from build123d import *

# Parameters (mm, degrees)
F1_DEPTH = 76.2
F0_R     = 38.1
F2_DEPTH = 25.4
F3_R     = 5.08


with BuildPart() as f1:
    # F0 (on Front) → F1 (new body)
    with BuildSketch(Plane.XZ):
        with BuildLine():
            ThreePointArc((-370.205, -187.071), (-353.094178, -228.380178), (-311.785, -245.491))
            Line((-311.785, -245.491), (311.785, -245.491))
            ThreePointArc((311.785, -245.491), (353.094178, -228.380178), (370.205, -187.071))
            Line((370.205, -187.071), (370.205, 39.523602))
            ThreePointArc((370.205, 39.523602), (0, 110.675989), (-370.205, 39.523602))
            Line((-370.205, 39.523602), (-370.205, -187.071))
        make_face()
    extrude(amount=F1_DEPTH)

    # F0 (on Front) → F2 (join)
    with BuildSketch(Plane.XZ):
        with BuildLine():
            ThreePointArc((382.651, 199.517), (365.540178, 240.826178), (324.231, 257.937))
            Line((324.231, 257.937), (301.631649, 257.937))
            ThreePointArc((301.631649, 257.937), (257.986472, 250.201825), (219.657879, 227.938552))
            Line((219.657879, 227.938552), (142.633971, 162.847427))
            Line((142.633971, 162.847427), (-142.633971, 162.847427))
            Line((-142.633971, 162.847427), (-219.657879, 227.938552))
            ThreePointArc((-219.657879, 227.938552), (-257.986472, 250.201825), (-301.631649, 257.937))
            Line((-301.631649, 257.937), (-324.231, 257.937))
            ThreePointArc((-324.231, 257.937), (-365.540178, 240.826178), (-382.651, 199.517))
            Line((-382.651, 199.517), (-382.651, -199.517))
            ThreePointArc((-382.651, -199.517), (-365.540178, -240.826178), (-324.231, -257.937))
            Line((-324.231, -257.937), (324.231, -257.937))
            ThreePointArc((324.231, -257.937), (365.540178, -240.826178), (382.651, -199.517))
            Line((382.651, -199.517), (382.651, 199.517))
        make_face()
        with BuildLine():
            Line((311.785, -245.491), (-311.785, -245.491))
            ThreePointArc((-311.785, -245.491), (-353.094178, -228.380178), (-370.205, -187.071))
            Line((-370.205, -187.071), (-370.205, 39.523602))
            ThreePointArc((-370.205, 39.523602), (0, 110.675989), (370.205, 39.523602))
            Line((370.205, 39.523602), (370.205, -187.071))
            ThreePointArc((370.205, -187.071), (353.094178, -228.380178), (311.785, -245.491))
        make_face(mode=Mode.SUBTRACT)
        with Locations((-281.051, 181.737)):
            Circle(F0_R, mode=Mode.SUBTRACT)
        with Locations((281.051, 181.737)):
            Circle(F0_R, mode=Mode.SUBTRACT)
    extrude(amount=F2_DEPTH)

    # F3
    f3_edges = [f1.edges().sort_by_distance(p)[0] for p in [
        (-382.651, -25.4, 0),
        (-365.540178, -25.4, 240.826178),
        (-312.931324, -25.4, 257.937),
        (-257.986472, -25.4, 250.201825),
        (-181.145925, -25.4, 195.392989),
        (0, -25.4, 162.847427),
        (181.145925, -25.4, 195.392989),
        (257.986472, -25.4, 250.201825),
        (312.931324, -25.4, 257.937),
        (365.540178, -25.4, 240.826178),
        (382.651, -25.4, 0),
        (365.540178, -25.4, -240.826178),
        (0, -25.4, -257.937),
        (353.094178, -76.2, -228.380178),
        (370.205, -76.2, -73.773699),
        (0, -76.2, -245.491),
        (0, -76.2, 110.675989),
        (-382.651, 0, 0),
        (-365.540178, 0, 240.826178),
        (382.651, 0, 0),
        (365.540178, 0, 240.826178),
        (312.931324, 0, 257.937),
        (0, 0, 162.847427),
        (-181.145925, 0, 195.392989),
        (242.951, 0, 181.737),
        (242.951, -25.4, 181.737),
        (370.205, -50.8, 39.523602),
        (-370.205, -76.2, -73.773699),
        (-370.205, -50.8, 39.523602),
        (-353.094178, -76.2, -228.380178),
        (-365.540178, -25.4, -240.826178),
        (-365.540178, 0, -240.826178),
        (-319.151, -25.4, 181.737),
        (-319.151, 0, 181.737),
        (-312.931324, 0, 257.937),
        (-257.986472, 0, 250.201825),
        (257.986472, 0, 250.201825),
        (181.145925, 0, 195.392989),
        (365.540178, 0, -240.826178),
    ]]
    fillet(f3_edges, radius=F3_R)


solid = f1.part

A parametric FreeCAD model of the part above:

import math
import FreeCAD as App
import Part
import Sketcher
from FreeCAD import Vector
Q = App.Units.Quantity


def edges_at(feature, points):
    """Names of the edges that pass closest to the given points."""
    edges = feature.Shape.Edges
    near = lambda p: min(range(len(edges)), key=lambda i: edges[i].distToShape(Part.Vertex(*p))[0])
    return sorted({f"Edge{near(p) + 1}" for p in points})

doc = App.newDocument("Part")
params = doc.addObject("Spreadsheet::Sheet", "Params")
for row, (alias, value) in enumerate([
    ("sketch1_radius", "2.3 in"),
    ("sketch1_width", "24.55 in"),
    ("pad1_length", "3 in"),
    ("sketch2_diameter", "3 in"),
    ("sketch2_radius", "5.0000002 in"),
    ("sketch2_radius2", "2.3 in"),
    ("sketch2_width", "25.53 in"),
    ("sketch2_width2", "24.55 in"),
    ("pad2_length", "1 in"),
    ("fillet_radius", "0.2 in"),
], start=1):
    params.set(f"A{row}", alias)
    params.set(f"B{row}", "=" + value)
    params.setAlias(f"B{row}", alias)

body = doc.addObject("PartDesign::Body", "Body")

# Sketch on XZ plane
sketch1 = body.newObject("Sketcher::SketchObject", "Sketch")
sketch1.AttachmentSupport = (doc.getObject("XZ_Plane"), [""])
sketch1.MapMode = "FlatFace"
sketch1.addGeometry(Part.ArcOfCircle(Part.Circle(Vector(-312, -187, 0), Vector(0, 0, 1), 58), math.radians(-180), math.radians(-90)), False)
sketch1.addGeometry(Part.LineSegment(Vector(-312, -245, 0), Vector(312, -245, 0)), False)
sketch1.addGeometry(Part.ArcOfCircle(Part.Circle(Vector(312, -187, 0), Vector(0, 0, 1), 58), math.radians(-90), math.radians(0)), False)
sketch1.addGeometry(Part.LineSegment(Vector(370, -187, 0), Vector(370, 40, 0)), False)
sketch1.addGeometry(Part.ArcOfCircle(Part.Circle(Vector(0, -888, 0), Vector(0, 0, 1), 999), math.radians(68), math.radians(112)), False)
sketch1.addGeometry(Part.LineSegment(Vector(-370, 40, 0), Vector(-370, -187, 0)), False)
sketch1.addConstraint(Sketcher.Constraint("Tangent", 0, 2, 1, 1))
sketch1.addConstraint(Sketcher.Constraint("Tangent", 1, 2, 2, 1))
sketch1.addConstraint(Sketcher.Constraint("Tangent", 2, 2, 3, 1))
sketch1.addConstraint(Sketcher.Constraint("Coincident", 3, 2, 4, 1))
sketch1.addConstraint(Sketcher.Constraint("Coincident", 4, 2, 5, 1))
sketch1.addConstraint(Sketcher.Constraint("Tangent", 5, 2, 0, 1))
sketch1.addConstraint(Sketcher.Constraint("Horizontal", 1))
sketch1.addConstraint(Sketcher.Constraint("Vertical", 3))
sketch1.addConstraint(Sketcher.Constraint("Vertical", 5))
sketch1.addConstraint(Sketcher.Constraint("Equal", 0, 2))
sketch1.addConstraint(Sketcher.Constraint("PointOnObject", 4, 3, -2))
sketch1.addConstraint(Sketcher.Constraint("Equal", 3, 5))
sketch1.addConstraint(Sketcher.Constraint("Radius", 0, Q("2.3 in")))
sketch1.addConstraint(Sketcher.Constraint("DistanceX", 1, 1, 1, 2, Q("24.55 in")))
sketch1.addConstraint(Sketcher.Constraint("DistanceY", 0, 3, -1, 1, Q("7.365 in")))
sketch1.addConstraint(Sketcher.Constraint("Radius", 4, Q("998.662239 mm")))
sketch1.addConstraint(Sketcher.Constraint("DistanceY", 3, 1, 3, 2, Q("226.594602 mm")))
sketch1.setExpression("Constraints[12]", "Params.sketch1_radius")
sketch1.setExpression("Constraints[13]", "Params.sketch1_width")
pad1 = body.newObject("PartDesign::Pad", "Pad")
pad1.Profile = sketch1
pad1.setExpression("Length", "Params.pad1_length")

# Sketch on XZ plane
sketch2 = body.newObject("Sketcher::SketchObject", "Sketch001")
sketch2.AttachmentSupport = (doc.getObject("XZ_Plane"), [""])
sketch2.MapMode = "FlatFace"
sketch2.addGeometry(Part.ArcOfCircle(Part.Circle(Vector(324, 200, 0), Vector(0, 0, 1), 58), math.radians(0), math.radians(90)), False)
sketch2.addGeometry(Part.LineSegment(Vector(324, 258, 0), Vector(302, 258, 0)), False)
sketch2.addGeometry(Part.ArcOfCircle(Part.Circle(Vector(302, 131, 0), Vector(0, 0, 1), 127), math.radians(90), math.radians(130)), False)
sketch2.addGeometry(Part.LineSegment(Vector(220, 228, 0), Vector(143, 163, 0)), False)
sketch2.addGeometry(Part.LineSegment(Vector(143, 163, 0), Vector(-143, 163, 0)), False)
sketch2.addGeometry(Part.LineSegment(Vector(-143, 163, 0), Vector(-220, 228, 0)), False)
sketch2.addGeometry(Part.ArcOfCircle(Part.Circle(Vector(-302, 131, 0), Vector(0, 0, 1), 127), math.radians(50), math.radians(90)), False)
sketch2.addGeometry(Part.LineSegment(Vector(-302, 258, 0), Vector(-324, 258, 0)), False)
sketch2.addGeometry(Part.ArcOfCircle(Part.Circle(Vector(-324, 200, 0), Vector(0, 0, 1), 58), math.radians(90), math.radians(180)), False)
sketch2.addGeometry(Part.LineSegment(Vector(-383, 200, 0), Vector(-383, -200, 0)), False)
sketch2.addGeometry(Part.ArcOfCircle(Part.Circle(Vector(-324, -200, 0), Vector(0, 0, 1), 58), math.radians(-180), math.radians(-90)), False)
sketch2.addGeometry(Part.LineSegment(Vector(-324, -258, 0), Vector(324, -258, 0)), False)
sketch2.addGeometry(Part.ArcOfCircle(Part.Circle(Vector(324, -200, 0), Vector(0, 0, 1), 58), math.radians(-90), math.radians(0)), False)
sketch2.addGeometry(Part.LineSegment(Vector(383, -200, 0), Vector(383, 200, 0)), False)
sketch2.addGeometry(Part.ArcOfCircle(Part.Circle(Vector(312, -187, 0), Vector(0, 0, 1), 58), math.radians(-90), math.radians(0)), False)
sketch2.addGeometry(Part.LineSegment(Vector(312, -245, 0), Vector(-312, -245, 0)), False)
sketch2.addGeometry(Part.ArcOfCircle(Part.Circle(Vector(-312, -187, 0), Vector(0, 0, 1), 58), math.radians(-180), math.radians(-90)), False)
sketch2.addGeometry(Part.LineSegment(Vector(-370, -187, 0), Vector(-370, 40, 0)), False)
sketch2.addGeometry(Part.ArcOfCircle(Part.Circle(Vector(0, -888, 0), Vector(0, 0, 1), 999), math.radians(68), math.radians(112)), False)
sketch2.addGeometry(Part.LineSegment(Vector(370, 40, 0), Vector(370, -187, 0)), False)
sketch2.addGeometry(Part.Circle(Vector(-281, 182, 0), Vector(0, 0, 1), 38), False)
sketch2.addGeometry(Part.Circle(Vector(281, 182, 0), Vector(0, 0, 1), 38), False)
sketch2.addConstraint(Sketcher.Constraint("Tangent", 0, 2, 1, 1))
sketch2.addConstraint(Sketcher.Constraint("Tangent", 1, 2, 2, 1))
sketch2.addConstraint(Sketcher.Constraint("Tangent", 2, 2, 3, 1))
sketch2.addConstraint(Sketcher.Constraint("Coincident", 3, 2, 4, 1))
sketch2.addConstraint(Sketcher.Constraint("Coincident", 4, 2, 5, 1))
sketch2.addConstraint(Sketcher.Constraint("Tangent", 5, 2, 6, 1))
sketch2.addConstraint(Sketcher.Constraint("Tangent", 6, 2, 7, 1))
sketch2.addConstraint(Sketcher.Constraint("Tangent", 7, 2, 8, 1))
sketch2.addConstraint(Sketcher.Constraint("Tangent", 8, 2, 9, 1))
sketch2.addConstraint(Sketcher.Constraint("Tangent", 9, 2, 10, 1))
sketch2.addConstraint(Sketcher.Constraint("Tangent", 10, 2, 11, 1))
sketch2.addConstraint(Sketcher.Constraint("Tangent", 11, 2, 12, 1))
sketch2.addConstraint(Sketcher.Constraint("Tangent", 12, 2, 13, 1))
sketch2.addConstraint(Sketcher.Constraint("Tangent", 13, 2, 0, 1))
sketch2.addConstraint(Sketcher.Constraint("Tangent", 14, 1, 15, 1))
sketch2.addConstraint(Sketcher.Constraint("Tangent", 15, 2, 16, 2))
sketch2.addConstraint(Sketcher.Constraint("Tangent", 16, 1, 17, 1))
sketch2.addConstraint(Sketcher.Constraint("Coincident", 17, 2, 18, 2))
sketch2.addConstraint(Sketcher.Constraint("Coincident", 18, 1, 19, 1))
sketch2.addConstraint(Sketcher.Constraint("Tangent", 19, 2, 14, 2))
sketch2.addConstraint(Sketcher.Constraint("Horizontal", 1))
sketch2.addConstraint(Sketcher.Constraint("Horizontal", 4))
sketch2.addConstraint(Sketcher.Constraint("Horizontal", 7))
sketch2.addConstraint(Sketcher.Constraint("Vertical", 9))
sketch2.addConstraint(Sketcher.Constraint("Horizontal", 11))
sketch2.addConstraint(Sketcher.Constraint("Vertical", 13))
sketch2.addConstraint(Sketcher.Constraint("Horizontal", 15))
sketch2.addConstraint(Sketcher.Constraint("Vertical", 17))
sketch2.addConstraint(Sketcher.Constraint("Vertical", 19))
sketch2.addConstraint(Sketcher.Constraint("Equal", 2, 6))
sketch2.addConstraint(Sketcher.Constraint("Equal", 0, 8))
sketch2.addConstraint(Sketcher.Constraint("Equal", 8, 10))
sketch2.addConstraint(Sketcher.Constraint("Equal", 10, 12))
sketch2.addConstraint(Sketcher.Constraint("Equal", 12, 14))
sketch2.addConstraint(Sketcher.Constraint("Equal", 14, 16))
sketch2.addConstraint(Sketcher.Constraint("Equal", 20, 21))
sketch2.addConstraint(Sketcher.Constraint("Symmetric", 0, 3, 10, 3, -1, 1))
sketch2.addConstraint(Sketcher.Constraint("Symmetric", 2, 3, 6, 3, -2))
sketch2.addConstraint(Sketcher.Constraint("Symmetric", 20, 3, 21, 3, -2))
sketch2.addConstraint(Sketcher.Constraint("PointOnObject", 18, 3, -2))
sketch2.addConstraint(Sketcher.Constraint("Horizontal", 2, 2, 5, 2))
sketch2.addConstraint(Sketcher.Constraint("Equal", 17, 19))
sketch2.addConstraint(Sketcher.Constraint("Diameter", 20, Q("3 in")))
sketch2.addConstraint(Sketcher.Constraint("Radius", 2, Q("5.0000002 in")))
sketch2.addConstraint(Sketcher.Constraint("Radius", 0, Q("2.3 in")))
sketch2.addConstraint(Sketcher.Constraint("DistanceY", 6, 3, 20, 3, Q("2.0000002 in")))
sketch2.addConstraint(Sketcher.Constraint("DistanceX", 8, 2, 20, 3, Q("4 in")))
sketch2.addConstraint(Sketcher.Constraint("DistanceX", 11, 1, 11, 2, Q("25.53 in")))
sketch2.addConstraint(Sketcher.Constraint("DistanceX", 15, 2, 15, 1, Q("24.55 in")))
sketch2.addConstraint(Sketcher.Constraint("DistanceY", 9, 2, 9, 1, Q("15.71 in")))
sketch2.addConstraint(Sketcher.Constraint("DistanceY", 12, 3, 14, 3, Q("0.49 in")))
sketch2.addConstraint(Sketcher.Constraint("Radius", 18, Q("998.662239 mm")))
sketch2.addConstraint(Sketcher.Constraint("DistanceY", 17, 1, 17, 2, Q("226.594602 mm")))
sketch2.addConstraint(Sketcher.Constraint("DistanceX", 1, 2, 1, 1, Q("22.599351 mm")))
sketch2.addConstraint(Sketcher.Constraint("DistanceX", 4, 2, 4, 1, Q("285.267942 mm")))
sketch2.addConstraint(Sketcher.Constraint("DistanceX", -1, 1, 2, 2, Q("219.657879 mm")))
sketch2.setExpression("Constraints[42]", "Params.sketch2_diameter")
sketch2.setExpression("Constraints[43]", "Params.sketch2_radius")
sketch2.setExpression("Constraints[44]", "Params.sketch2_radius2")
sketch2.setExpression("Constraints[47]", "Params.sketch2_width")
sketch2.setExpression("Constraints[48]", "Params.sketch2_width2")
pad2 = body.newObject("PartDesign::Pad", "Pad001")
pad2.Profile = sketch2
pad2.setExpression("Length", "Params.pad2_length")
doc.recompute()

fillet = body.newObject("PartDesign::Fillet", "Fillet")
fillet.Base = (pad2, edges_at(pad2, [
    (-382.651, -25.4, 0),
    (-365.54, -25.4, 240.826),
    (-312.931, -25.4, 257.937),
    (-257.986, -25.4, 250.202),
    (-181.146, -25.4, 195.393),
    (0, -25.4, 162.847),
    (181.146, -25.4, 195.393),
    (257.986, -25.4, 250.202),
    (312.931, -25.4, 257.937),
    (365.54, -25.4, 240.826),
    (382.651, -25.4, 0),
    (365.54, -25.4, -240.826),
    (0, -25.4, -257.937),
    (353.094, -76.2, -228.38),
    (370.205, -76.2, -73.774),
    (0, -76.2, -245.491),
    (0, -76.2, 110.676),
    (-382.651, 0, 0),
    (-365.54, 0, 240.826),
    (382.651, 0, 0),
    (365.54, 0, 240.826),
    (312.931, 0, 257.937),
    (0, 0, 162.847),
    (-181.146, 0, 195.393),
    (242.951, 0, 181.737),
    (242.951, -25.4, 181.737),
    (370.205, -50.8, 39.524),
    (-370.205, -76.2, -73.774),
    (-370.205, -50.8, 39.524),
    (-353.094, -76.2, -228.38),
    (-365.54, -25.4, -240.826),
    (-365.54, 0, -240.826),
    (-319.151, -25.4, 181.737),
    (-319.151, 0, 181.737),
    (-312.931, 0, 257.937),
    (-257.986, 0, 250.202),
    (257.986, 0, 250.202),
    (181.146, 0, 195.393),
    (365.54, 0, -240.826),
]))
fillet.setExpression("Radius", "Params.fillet_radius")

doc.recompute()
